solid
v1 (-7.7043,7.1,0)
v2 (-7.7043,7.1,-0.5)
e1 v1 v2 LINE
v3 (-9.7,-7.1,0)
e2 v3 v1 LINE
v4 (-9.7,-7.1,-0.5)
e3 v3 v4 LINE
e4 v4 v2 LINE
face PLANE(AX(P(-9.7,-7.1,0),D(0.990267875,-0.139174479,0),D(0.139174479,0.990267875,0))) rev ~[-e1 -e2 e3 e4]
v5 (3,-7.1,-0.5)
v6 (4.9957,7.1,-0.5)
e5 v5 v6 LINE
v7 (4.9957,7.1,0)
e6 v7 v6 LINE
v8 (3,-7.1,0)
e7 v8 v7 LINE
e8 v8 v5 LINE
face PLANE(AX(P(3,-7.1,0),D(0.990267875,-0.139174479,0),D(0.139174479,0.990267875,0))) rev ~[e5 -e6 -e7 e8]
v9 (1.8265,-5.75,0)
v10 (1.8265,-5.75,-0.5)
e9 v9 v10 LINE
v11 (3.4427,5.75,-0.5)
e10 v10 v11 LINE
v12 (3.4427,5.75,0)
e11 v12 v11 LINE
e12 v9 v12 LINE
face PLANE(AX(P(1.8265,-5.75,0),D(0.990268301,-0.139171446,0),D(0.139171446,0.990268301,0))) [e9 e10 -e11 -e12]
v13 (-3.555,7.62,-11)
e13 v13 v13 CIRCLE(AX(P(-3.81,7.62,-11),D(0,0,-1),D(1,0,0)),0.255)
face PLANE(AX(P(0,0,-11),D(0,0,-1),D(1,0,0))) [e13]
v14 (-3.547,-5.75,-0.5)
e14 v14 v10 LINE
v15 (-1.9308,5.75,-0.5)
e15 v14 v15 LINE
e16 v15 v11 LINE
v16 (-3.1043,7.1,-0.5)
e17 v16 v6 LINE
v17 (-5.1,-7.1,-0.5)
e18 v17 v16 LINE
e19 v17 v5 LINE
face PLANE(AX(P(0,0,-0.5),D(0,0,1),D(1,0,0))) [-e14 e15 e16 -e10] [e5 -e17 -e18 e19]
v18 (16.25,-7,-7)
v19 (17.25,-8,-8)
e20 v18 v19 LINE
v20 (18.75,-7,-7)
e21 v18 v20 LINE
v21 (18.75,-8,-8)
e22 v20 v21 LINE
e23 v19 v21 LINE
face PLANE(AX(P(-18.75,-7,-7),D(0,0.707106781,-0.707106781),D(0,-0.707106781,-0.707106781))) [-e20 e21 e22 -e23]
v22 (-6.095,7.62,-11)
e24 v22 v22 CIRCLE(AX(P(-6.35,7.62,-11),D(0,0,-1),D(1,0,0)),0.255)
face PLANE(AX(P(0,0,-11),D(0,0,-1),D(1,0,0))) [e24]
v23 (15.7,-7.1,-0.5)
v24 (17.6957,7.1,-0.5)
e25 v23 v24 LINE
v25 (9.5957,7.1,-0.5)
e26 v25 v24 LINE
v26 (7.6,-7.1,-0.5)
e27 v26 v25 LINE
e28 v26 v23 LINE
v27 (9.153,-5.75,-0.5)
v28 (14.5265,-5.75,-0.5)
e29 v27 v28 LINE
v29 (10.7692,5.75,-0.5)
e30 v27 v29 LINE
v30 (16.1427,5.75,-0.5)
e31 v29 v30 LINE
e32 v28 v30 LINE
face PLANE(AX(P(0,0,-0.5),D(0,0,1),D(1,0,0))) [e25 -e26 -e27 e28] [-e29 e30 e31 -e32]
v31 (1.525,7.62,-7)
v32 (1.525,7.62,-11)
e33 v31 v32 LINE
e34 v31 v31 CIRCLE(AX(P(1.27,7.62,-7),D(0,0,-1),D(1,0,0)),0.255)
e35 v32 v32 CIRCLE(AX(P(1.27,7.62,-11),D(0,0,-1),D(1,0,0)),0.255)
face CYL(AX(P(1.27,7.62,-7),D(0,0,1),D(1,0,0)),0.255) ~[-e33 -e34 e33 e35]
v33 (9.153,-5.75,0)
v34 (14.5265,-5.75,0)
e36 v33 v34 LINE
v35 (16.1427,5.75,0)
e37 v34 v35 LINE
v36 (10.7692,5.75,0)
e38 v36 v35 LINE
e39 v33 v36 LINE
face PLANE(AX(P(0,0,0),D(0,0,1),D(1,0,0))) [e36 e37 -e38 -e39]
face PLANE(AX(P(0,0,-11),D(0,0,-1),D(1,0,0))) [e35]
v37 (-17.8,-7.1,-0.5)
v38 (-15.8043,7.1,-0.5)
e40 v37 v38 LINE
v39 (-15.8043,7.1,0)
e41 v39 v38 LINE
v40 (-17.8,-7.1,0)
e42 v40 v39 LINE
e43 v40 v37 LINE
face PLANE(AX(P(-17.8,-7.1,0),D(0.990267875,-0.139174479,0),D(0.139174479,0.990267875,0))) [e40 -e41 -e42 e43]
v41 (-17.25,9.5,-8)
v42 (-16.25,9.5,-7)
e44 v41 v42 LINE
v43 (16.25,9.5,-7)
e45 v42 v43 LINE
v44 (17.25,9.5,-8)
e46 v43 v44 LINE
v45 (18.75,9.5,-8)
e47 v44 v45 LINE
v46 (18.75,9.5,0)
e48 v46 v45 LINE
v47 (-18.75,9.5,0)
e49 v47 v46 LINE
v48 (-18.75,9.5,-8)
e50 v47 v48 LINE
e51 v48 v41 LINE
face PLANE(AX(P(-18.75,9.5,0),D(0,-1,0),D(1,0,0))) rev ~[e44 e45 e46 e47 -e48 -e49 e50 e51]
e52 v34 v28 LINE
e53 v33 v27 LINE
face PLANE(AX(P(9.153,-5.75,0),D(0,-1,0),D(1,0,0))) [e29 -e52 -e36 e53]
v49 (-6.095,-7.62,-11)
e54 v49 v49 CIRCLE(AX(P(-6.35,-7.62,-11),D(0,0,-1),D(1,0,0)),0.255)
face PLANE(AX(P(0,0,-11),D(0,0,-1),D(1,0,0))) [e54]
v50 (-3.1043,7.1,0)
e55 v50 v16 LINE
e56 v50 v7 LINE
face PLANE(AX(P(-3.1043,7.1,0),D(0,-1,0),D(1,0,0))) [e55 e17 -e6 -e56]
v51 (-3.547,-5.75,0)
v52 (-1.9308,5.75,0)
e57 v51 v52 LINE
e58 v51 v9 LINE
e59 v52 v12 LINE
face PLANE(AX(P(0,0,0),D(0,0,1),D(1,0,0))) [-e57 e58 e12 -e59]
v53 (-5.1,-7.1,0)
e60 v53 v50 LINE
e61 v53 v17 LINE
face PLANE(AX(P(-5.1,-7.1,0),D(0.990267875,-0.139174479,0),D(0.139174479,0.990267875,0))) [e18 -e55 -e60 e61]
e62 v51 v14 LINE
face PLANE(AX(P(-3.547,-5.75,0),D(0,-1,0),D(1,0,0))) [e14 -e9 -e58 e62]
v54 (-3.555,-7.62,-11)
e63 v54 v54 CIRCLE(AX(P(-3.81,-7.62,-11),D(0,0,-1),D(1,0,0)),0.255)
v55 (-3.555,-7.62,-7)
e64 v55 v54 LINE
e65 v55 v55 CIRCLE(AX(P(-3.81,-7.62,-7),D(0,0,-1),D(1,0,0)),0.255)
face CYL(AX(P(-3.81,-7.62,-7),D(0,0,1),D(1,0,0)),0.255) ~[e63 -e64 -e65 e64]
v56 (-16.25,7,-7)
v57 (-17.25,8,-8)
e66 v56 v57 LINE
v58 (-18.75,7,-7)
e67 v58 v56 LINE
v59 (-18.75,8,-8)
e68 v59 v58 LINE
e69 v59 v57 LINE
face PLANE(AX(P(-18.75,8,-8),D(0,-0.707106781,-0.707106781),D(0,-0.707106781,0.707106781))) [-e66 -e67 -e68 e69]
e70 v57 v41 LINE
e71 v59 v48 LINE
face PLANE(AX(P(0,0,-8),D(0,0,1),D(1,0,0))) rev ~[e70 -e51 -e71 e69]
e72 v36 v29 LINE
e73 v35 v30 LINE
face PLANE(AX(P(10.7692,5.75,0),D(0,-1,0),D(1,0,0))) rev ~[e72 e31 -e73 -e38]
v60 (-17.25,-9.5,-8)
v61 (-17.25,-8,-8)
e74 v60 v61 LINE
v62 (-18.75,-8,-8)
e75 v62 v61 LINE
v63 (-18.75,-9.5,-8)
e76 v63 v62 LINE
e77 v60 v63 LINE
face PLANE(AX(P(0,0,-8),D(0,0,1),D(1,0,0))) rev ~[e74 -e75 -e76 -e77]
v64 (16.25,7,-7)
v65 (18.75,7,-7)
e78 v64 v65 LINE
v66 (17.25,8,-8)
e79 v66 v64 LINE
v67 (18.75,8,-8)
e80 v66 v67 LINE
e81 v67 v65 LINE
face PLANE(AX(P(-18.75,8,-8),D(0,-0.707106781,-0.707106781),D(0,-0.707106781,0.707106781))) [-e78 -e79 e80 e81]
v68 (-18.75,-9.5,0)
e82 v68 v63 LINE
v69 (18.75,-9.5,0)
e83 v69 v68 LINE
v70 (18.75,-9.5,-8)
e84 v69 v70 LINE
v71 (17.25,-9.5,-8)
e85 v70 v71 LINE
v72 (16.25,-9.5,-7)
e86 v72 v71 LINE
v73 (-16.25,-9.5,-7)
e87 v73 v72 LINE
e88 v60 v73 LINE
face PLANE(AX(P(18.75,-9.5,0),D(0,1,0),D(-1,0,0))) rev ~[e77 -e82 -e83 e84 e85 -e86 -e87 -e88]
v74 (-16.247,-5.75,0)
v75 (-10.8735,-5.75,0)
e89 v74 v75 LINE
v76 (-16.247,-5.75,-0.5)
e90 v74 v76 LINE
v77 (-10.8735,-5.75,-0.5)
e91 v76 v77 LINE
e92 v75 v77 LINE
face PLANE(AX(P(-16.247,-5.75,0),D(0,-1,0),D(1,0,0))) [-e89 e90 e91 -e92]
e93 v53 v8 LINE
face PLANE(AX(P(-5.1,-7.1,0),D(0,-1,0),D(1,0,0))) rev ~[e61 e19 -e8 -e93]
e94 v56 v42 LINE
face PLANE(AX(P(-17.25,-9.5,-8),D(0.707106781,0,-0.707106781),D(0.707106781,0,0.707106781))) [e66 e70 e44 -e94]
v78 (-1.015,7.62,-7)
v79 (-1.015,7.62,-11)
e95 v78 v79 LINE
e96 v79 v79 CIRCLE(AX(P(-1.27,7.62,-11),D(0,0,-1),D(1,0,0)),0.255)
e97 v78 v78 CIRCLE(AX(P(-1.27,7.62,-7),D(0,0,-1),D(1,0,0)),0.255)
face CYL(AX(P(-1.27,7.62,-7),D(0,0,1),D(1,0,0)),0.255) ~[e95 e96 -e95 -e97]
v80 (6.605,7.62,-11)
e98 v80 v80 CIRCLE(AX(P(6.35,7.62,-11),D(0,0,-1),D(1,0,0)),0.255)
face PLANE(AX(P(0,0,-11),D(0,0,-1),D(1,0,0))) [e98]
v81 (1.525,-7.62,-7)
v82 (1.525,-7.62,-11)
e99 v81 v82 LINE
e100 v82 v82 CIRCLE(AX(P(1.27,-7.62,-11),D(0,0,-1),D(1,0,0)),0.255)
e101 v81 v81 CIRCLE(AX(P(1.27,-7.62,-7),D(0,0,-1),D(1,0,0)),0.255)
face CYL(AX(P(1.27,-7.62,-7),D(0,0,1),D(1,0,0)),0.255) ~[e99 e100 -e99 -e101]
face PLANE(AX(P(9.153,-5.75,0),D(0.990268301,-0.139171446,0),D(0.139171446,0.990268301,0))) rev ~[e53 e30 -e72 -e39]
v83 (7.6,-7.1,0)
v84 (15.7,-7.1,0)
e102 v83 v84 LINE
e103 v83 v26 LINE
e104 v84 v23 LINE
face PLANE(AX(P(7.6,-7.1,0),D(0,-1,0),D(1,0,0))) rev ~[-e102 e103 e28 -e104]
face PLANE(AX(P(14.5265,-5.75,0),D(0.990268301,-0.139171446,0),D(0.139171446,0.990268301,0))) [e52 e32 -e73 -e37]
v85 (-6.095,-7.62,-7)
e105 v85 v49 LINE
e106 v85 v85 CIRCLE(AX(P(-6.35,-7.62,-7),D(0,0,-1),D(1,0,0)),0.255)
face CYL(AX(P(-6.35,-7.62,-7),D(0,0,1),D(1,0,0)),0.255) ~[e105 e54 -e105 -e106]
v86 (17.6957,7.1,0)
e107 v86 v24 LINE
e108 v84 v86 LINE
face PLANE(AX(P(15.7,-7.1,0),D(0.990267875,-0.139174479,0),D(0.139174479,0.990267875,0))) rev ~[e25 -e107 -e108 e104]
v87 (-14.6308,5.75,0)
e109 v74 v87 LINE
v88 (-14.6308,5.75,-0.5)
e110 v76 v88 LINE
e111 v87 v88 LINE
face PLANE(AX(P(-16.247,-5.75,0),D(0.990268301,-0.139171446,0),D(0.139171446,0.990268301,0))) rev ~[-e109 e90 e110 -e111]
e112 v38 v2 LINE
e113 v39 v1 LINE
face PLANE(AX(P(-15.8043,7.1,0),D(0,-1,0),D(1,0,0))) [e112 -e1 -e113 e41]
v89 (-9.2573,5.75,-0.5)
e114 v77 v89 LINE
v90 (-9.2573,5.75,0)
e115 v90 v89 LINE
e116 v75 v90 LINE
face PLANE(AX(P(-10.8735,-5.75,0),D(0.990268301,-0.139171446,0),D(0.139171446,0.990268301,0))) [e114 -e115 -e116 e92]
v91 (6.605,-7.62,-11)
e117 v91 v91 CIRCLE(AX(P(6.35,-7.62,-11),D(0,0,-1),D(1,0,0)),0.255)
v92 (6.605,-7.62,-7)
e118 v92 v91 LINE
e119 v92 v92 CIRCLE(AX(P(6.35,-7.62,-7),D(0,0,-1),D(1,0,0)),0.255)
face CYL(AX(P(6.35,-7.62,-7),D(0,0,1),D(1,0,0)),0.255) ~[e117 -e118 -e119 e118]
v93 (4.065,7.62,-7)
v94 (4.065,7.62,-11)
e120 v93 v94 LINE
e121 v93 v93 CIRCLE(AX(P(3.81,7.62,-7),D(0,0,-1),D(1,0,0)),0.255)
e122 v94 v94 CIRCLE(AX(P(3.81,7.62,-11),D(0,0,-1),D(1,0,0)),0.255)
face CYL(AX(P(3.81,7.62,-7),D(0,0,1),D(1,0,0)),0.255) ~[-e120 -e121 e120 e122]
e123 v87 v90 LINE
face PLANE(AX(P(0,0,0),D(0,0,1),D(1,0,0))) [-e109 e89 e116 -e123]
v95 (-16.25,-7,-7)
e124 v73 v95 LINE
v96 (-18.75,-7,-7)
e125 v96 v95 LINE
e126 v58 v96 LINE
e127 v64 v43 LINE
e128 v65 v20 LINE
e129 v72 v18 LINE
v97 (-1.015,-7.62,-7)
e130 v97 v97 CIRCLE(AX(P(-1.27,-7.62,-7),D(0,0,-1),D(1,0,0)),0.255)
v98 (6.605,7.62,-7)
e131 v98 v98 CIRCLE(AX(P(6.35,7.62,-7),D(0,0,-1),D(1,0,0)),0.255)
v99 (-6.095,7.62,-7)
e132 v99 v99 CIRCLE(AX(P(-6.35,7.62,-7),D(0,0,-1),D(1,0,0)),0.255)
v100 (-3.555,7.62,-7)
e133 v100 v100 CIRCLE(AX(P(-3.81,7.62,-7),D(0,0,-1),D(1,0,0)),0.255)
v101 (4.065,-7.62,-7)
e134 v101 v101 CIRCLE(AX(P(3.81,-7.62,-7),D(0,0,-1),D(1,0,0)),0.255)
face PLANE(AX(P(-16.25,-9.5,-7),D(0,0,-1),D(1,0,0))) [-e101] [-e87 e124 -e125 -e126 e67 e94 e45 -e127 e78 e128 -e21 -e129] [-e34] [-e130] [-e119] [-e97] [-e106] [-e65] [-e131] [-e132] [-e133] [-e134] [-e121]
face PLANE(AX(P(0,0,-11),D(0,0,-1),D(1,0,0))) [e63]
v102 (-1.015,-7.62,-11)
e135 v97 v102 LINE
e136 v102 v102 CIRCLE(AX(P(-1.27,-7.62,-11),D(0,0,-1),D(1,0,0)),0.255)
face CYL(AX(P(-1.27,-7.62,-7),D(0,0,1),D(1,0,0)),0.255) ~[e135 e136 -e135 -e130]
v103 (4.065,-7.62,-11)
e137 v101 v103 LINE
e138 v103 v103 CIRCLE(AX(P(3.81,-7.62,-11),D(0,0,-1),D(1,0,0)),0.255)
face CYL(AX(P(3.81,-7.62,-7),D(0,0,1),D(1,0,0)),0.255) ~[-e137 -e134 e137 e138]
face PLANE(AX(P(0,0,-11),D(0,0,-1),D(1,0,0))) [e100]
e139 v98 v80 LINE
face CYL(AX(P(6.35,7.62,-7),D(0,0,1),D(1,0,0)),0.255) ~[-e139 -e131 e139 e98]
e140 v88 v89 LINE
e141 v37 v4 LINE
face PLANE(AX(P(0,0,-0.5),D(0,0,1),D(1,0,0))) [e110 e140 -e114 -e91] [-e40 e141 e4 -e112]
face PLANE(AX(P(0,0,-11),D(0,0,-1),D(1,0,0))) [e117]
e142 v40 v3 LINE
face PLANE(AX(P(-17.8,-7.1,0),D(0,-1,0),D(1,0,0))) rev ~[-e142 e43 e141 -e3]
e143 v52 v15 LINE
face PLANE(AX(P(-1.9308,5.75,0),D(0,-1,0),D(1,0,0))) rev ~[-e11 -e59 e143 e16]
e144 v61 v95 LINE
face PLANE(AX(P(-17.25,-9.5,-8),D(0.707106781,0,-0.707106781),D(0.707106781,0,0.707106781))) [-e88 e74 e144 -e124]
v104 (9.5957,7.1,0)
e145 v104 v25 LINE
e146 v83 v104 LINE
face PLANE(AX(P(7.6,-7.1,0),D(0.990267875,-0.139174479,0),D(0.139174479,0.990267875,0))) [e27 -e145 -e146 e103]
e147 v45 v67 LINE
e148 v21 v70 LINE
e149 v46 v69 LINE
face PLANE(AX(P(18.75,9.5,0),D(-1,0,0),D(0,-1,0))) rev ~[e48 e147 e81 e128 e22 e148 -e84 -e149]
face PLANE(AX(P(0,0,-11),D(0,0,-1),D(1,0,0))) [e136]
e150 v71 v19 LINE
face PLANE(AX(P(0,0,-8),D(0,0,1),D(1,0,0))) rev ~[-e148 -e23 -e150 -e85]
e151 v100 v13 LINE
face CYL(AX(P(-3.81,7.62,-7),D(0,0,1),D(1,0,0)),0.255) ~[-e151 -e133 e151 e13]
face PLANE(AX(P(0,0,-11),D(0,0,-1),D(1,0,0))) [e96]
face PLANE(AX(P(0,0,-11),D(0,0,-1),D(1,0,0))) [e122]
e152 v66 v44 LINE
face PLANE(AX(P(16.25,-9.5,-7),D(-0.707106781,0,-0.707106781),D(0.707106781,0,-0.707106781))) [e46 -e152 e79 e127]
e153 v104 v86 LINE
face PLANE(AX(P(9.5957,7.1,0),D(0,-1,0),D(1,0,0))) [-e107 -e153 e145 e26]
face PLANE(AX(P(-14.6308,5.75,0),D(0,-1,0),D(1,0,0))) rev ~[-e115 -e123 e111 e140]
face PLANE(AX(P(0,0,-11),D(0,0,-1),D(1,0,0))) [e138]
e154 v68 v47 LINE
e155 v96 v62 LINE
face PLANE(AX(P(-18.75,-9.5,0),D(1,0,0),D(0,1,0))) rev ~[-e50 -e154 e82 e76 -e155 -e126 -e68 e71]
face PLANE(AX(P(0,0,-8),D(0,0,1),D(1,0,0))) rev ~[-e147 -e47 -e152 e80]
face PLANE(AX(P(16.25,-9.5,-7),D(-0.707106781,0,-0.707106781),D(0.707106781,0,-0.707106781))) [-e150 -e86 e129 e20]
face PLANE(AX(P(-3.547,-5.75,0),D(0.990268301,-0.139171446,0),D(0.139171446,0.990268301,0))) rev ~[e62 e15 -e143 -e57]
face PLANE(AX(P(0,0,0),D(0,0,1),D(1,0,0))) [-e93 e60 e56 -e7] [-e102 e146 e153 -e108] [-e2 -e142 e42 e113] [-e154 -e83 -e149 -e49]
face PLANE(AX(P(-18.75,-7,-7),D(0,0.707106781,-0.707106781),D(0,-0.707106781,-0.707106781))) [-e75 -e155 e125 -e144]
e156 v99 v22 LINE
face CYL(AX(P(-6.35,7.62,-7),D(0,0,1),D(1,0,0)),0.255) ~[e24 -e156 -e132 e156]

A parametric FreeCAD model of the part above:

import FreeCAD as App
import Part
import Sketcher

V = App.Vector
Q = App.Units.Quantity


def add_polygon(sketch, points):
    """Adds a closed chain of lines whose ends are joined by coincident constraints."""
    first, n = sketch.GeometryCount, len(points)
    for a, b in zip(points, points[1:] + points[:1]):
        sketch.addGeometry(Part.LineSegment(App.Vector(*a, 0), App.Vector(*b, 0)), False)
    for i in range(n):
        sketch.addConstraint(Sketcher.Constraint("Coincident", first + i, 2, first + (i + 1) % n, 1))

doc = App.newDocument("Part")
params = doc.addObject("Spreadsheet::Sheet", "Params")
for row, (alias, value) in enumerate([
    ("sketch1_height", "19 mm"),
    ("sketch1_width", "37.5 mm"),
    ("pad1_length", "8 mm"),
    ("sketch2_width", "8.1 mm"),
    ("pocket1_length", "0.5 mm"),
    ("sketch3_width", "34.5 mm"),
    ("pocket2_length", "19 mm"),
    ("sketch4_width", "16 mm"),
    ("pocket3_length", "37.5 mm"),
    ("sketch5_diameter", "0.51 mm"),
    ("pad2_length", "4 mm"),
], start=1):
    params.set(f"A{row}", alias)
    params.set(f"B{row}", "=" + value)
    params.setAlias(f"B{row}", alias)

body = doc.addObject("PartDesign::Body", "Body")

# Sketch on XY plane
sketch1 = body.newObject("Sketcher::SketchObject", "Sketch")
sketch1.AttachmentSupport = (doc.getObject("XY_Plane"), [""])
sketch1.MapMode = "FlatFace"
add_polygon(sketch1, [(-19, -10), (19, -10), (19, 10), (-19, 10)])  # lines 0-3
sketch1.addConstraint([
    Sketcher.Constraint("Horizontal", 0),
    Sketcher.Constraint("Vertical", 1),
    Sketcher.Constraint("Horizontal", 2),
    Sketcher.Constraint("Vertical", 3),
    Sketcher.Constraint("Symmetric", 0, 2, 2, 2, -1, 1),
    Sketcher.Constraint("DistanceY", 1, 1, 1, 2, Q("19 mm")),
    Sketcher.Constraint("DistanceX", 0, 1, 0, 2, Q("37.5 mm")),
])
sketch1.setExpression("Constraints[9]", "Params.sketch1_height")
sketch1.setExpression("Constraints[10]", "Params.sketch1_width")
pad1 = body.newObject("PartDesign::Pad", "Pad")
pad1.Profile = sketch1
pad1.setExpression("Length", "Params.pad1_length")
pad1.Reversed = True

# Sketch on XY plane
sketch2 = body.newObject("Sketcher::SketchObject", "Sketch001")
sketch2.AttachmentSupport = (doc.getObject("XY_Plane"), [""])
sketch2.MapMode = "FlatFace"
add_polygon(sketch2, [(-3, 7), (-5, -7), (3, -7), (5, 7)])  # lines 0-3
add_polygon(sketch2, [(-4, -6), (-2, 6), (3, 6), (2, -6)])  # lines 4-7
add_polygon(sketch2, [(-16, 7), (-18, -7), (-10, -7), (-8, 7)])  # lines 8-11
add_polygon(sketch2, [(-11, -6), (-16, -6), (-15, 6), (-9, 6)])  # lines 12-15
add_polygon(sketch2, [(10, 7), (8, -7), (16, -7), (18, 7)])  # lines 16-19
add_polygon(sketch2, [(15, -6), (9, -6), (11, 6), (16, 6)])  # lines 20-23
sketch2.addConstraint([
    Sketcher.Constraint("Horizontal", 1),
    Sketcher.Constraint("Horizontal", 3),
    Sketcher.Constraint("Horizontal", 5),
    Sketcher.Constraint("Horizontal", 7),
    Sketcher.Constraint("Horizontal", 9),
    Sketcher.Constraint("Horizontal", 11),
    Sketcher.Constraint("Horizontal", 12),
    Sketcher.Constraint("Horizontal", 14),
    Sketcher.Constraint("Horizontal", 17),
    Sketcher.Constraint("Horizontal", 19),
    Sketcher.Constraint("Horizontal", 20),
    Sketcher.Constraint("Horizontal", 22),
    Sketcher.Constraint("Parallel", 0, 2),
    Sketcher.Constraint("Parallel", 2, 4),
    Sketcher.Constraint("Parallel", 4, 6),
    Sketcher.Constraint("Parallel", 6, 8),
    Sketcher.Constraint("Parallel", 8, 10),
    Sketcher.Constraint("Parallel", 10, 13),
    Sketcher.Constraint("Parallel", 13, 15),
    Sketcher.Constraint("Parallel", 15, 16),
    Sketcher.Constraint("Parallel", 16, 18),
    Sketcher.Constraint("Parallel", 18, 21),
    Sketcher.Constraint("Parallel", 21, 23),
    Sketcher.Constraint("Horizontal", 1, 2, 8, 2),
    Sketcher.Constraint("Horizontal", 3, 2, 10, 2),
    Sketcher.Constraint("Horizontal", 7, 2, 12, 2),
    Sketcher.Constraint("Horizontal", 5, 2, 13, 2),
    Sketcher.Constraint("Horizontal", 9, 2, 16, 2),
    Sketcher.Constraint("Horizontal", 11, 2, 18, 2),
    Sketcher.Constraint("Horizontal", 15, 2, 20, 2),
    Sketcher.Constraint("Horizontal", 14, 2, 21, 2),
    Sketcher.Constraint("Equal", 3, 9),
    Sketcher.Constraint("Equal", 7, 12),
    Sketcher.Constraint("Equal", 11, 17),
    Sketcher.Constraint("Equal", 14, 20),
    Sketcher.Constraint("Angle", 2, Q("82 deg")),
    Sketcher.Constraint("DistanceX", 1, 1, 1, 2, Q("8.1 mm")),
    Sketcher.Constraint("DistanceX", -1, 1, 1, 2, Q("3 mm")),
    Sketcher.Constraint("DistanceX", 8, 2, 0, 2, Q("12.7 mm")),
    Sketcher.Constraint("DistanceX", 12, 2, 7, 2, Q("12.7 mm")),
    Sketcher.Constraint("DistanceX", 0, 2, 16, 2, Q("12.7 mm")),
    Sketcher.Constraint("DistanceX", 7, 2, 20, 2, Q("12.7 mm")),
    Sketcher.Constraint("DistanceY", 4, 2, 3, 2, Q("1.35 mm")),
    Sketcher.Constraint("DistanceY", 1, 2, 6, 2, Q("1.35 mm")),
    Sketcher.Constraint("DistanceY", 0, 2, -1, 1, Q("7.1 mm")),
    Sketcher.Constraint("DistanceY", -1, 1, 2, 2, Q("7.1 mm")),
    Sketcher.Constraint("DistanceX", 5, 1, 5, 2, Q("5.3735 mm")),
    Sketcher.Constraint("DistanceX", 7, 2, -1, 1, Q("3.547 mm")),
])
sketch2.setExpression("Constraints[60]", "Params.sketch2_width")
pocket1 = body.newObject("PartDesign::Pocket", "Pocket")
pocket1.Profile = sketch2
pocket1.setExpression("Length", "Params.pocket1_length")

# Sketch on XZ plane
sketch3 = body.newObject("Sketcher::SketchObject", "Sketch002")
sketch3.AttachmentSupport = (doc.getObject("XZ_Plane"), [""])
sketch3.MapMode = "FlatFace"
sketch3.AttachmentOffset = App.Placement(V(0, 0, 9.5), App.Rotation())
add_polygon(sketch3, [(-17.2, -8), (17.2, -8), (16.2, -7), (-16.2, -7)])  # lines 0-3
sketch3.addConstraint([
    Sketcher.Constraint("Horizontal", 0),
    Sketcher.Constraint("Horizontal", 2),
    Sketcher.Constraint("Perpendicular", 1, 3),
    Sketcher.Constraint("Equal", 1, 3),
    Sketcher.Constraint("DistanceX", 1, 2, 0, 2, Q("1 mm")),
    Sketcher.Constraint("DistanceX", 0, 1, 0, 2, Q("34.5 mm")),
    Sketcher.Constraint("DistanceY", 0, 2, -1, 1, Q("8 mm")),
    Sketcher.Constraint("DistanceX", -1, 1, 0, 2, Q("17.25 mm")),
])
sketch3.setExpression("Constraints[9]", "Params.sketch3_width")
pocket2 = body.newObject("PartDesign::Pocket", "Pocket001")
pocket2.Profile = sketch3
pocket2.setExpression("Length", "Params.pocket2_length")

# Sketch on YZ plane
sketch4 = body.newObject("Sketcher::SketchObject", "Sketch003")
sketch4.AttachmentSupport = (doc.getObject("YZ_Plane"), [""])
sketch4.MapMode = "FlatFace"
sketch4.AttachmentOffset = App.Placement(V(0, 0, -18.75), App.Rotation())
add_polygon(sketch4, [(8, -8), (-8, -8), (-7, -7), (7, -7)])  # lines 0-3
sketch4.addConstraint([
    Sketcher.Constraint("Horizontal", 0),
    Sketcher.Constraint("Horizontal", 2),
    Sketcher.Constraint("Perpendicular", 1, 3),
    Sketcher.Constraint("Equal", 1, 3),
    Sketcher.Constraint("DistanceX", 0, 2, 1, 2, Q("1 mm")),
    Sketcher.Constraint("DistanceX", 0, 2, 0, 1, Q("16 mm")),
    Sketcher.Constraint("DistanceX", 0, 2, -1, 1, Q("8 mm")),
    Sketcher.Constraint("DistanceY", 0, 2, -1, 1, Q("8 mm")),
])
sketch4.setExpression("Constraints[9]", "Params.sketch4_width")
pocket3 = body.newObject("PartDesign::Pocket", "Pocket002")
pocket3.Profile = sketch4
pocket3.setExpression("Length", "Params.pocket3_length")
pocket3.Reversed = True

# Sketch on XY plane
sketch5 = body.newObject("Sketcher::SketchObject", "Sketch004")
sketch5.AttachmentSupport = (doc.getObject("XY_Plane"), [""])
sketch5.MapMode = "FlatFace"
sketch5.AttachmentOffset = App.Placement(V(0, 0, -7), App.Rotation())
sketch5.addGeometry([
    Part.Circle(V(-6.35, -7.62, 0), V(0, 0, 1), 0.26),  # 0
    Part.Circle(V(-3.81, -7.62, 0), V(0, 0, 1), 0.26),  # 1
    Part.Circle(V(-1.27, -7.62, 0), V(0, 0, 1), 0.26),  # 2
    Part.Circle(V(1.27, -7.62, 0), V(0, 0, 1), 0.26),  # 3
    Part.Circle(V(3.81, -7.62, 0), V(0, 0, 1), 0.26),  # 4
    Part.Circle(V(6.35, -7.62, 0), V(0, 0, 1), 0.26),  # 5
    Part.Circle(V(-6.35, 7.62, 0), V(0, 0, 1), 0.26),  # 6
    Part.Circle(V(-3.81, 7.62, 0), V(0, 0, 1), 0.26),  # 7
    Part.Circle(V(-1.27, 7.62, 0), V(0, 0, 1), 0.26),  # 8
    Part.Circle(V(1.27, 7.62, 0), V(0, 0, 1), 0.26),  # 9
    Part.Circle(V(3.81, 7.62, 0), V(0, 0, 1), 0.26),  # 10
    Part.Circle(V(6.35, 7.62, 0), V(0, 0, 1), 0.26),  # 11
], False)
sketch5.addConstraint([
    Sketcher.Constraint("Equal", 0, 1),
    Sketcher.Constraint("Equal", 1, 2),
    Sketcher.Constraint("Equal", 2, 3),
    Sketcher.Constraint("Equal", 3, 4),
    Sketcher.Constraint("Equal", 4, 5),
    Sketcher.Constraint("Equal", 5, 6),
    Sketcher.Constraint("Equal", 6, 7),
    Sketcher.Constraint("Equal", 7, 8),
    Sketcher.Constraint("Equal", 8, 9),
    Sketcher.Constraint("Equal", 9, 10),
    Sketcher.Constraint("Equal", 10, 11),
    Sketcher.Constraint("Symmetric", 5, 3, 6, 3, -1, 1),
    Sketcher.Constraint("Symmetric", 4, 3, 7, 3, -1, 1),
    Sketcher.Constraint("Symmetric", 3, 3, 8, 3, -1, 1),
    Sketcher.Constraint("Symmetric", 2, 3, 9, 3, -1, 1),
    Sketcher.Constraint("Symmetric", 1, 3, 10, 3, -1, 1),
    Sketcher.Constraint("Symmetric", 0, 3, 11, 3, -1, 1),
    Sketcher.Constraint("Symmetric", 2, 3, 3, 3, -2),
    Sketcher.Constraint("Symmetric", 1, 3, 4, 3, -2),
    Sketcher.Constraint("Symmetric", 0, 3, 5, 3, -2),
    Sketcher.Constraint("Horizontal", 0, 3, 1, 3),
    Sketcher.Constraint("Horizontal", 1, 3, 2, 3),
    Sketcher.Constraint("Diameter", 0, Q("0.51 mm")),
    Sketcher.Constraint("DistanceX", 0, 3, 5, 3, Q("12.7 mm")),
    Sketcher.Constraint("DistanceY", 0, 3, -1, 1, Q("7.62 mm")),
    Sketcher.Constraint("DistanceX", 0, 3, 3, 3, Q("7.62 mm")),
    Sketcher.Constraint("DistanceX", 1, 3, 4, 3, Q("7.62 mm")),
])
sketch5.setExpression("Constraints[22]", "Params.sketch5_diameter")
pad2 = body.newObject("PartDesign::Pad", "Pad001")
pad2.Profile = sketch5
pad2.setExpression("Length", "Params.pad2_length")
pad2.Reversed = True

doc.recompute()
